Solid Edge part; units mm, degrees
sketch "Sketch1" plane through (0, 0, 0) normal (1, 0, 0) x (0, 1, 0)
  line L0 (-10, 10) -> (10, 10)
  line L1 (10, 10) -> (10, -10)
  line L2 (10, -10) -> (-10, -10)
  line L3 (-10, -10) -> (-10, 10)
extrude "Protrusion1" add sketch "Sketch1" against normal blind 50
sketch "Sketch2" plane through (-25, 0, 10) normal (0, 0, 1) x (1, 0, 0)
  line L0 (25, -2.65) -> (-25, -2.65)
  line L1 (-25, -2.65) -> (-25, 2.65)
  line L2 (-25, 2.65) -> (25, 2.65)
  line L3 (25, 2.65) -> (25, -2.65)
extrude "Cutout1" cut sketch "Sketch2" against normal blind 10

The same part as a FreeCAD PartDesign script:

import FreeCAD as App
import Part
import Sketcher


def add_polygon(sketch, points):
    """Adds a closed chain of lines whose ends are joined by coincident constraints."""
    first, n = sketch.GeometryCount, len(points)
    for a, b in zip(points, points[1:] + points[:1]):
        sketch.addGeometry(Part.LineSegment(App.Vector(*a, 0), App.Vector(*b, 0)), False)
    for i in range(n):
        sketch.addConstraint(Sketcher.Constraint("Coincident", first + i, 2, first + (i + 1) % n, 1))

doc = App.newDocument("Part")
body = doc.addObject("PartDesign::Body", "Body")

sketch1 = body.newObject("Sketcher::SketchObject", "Sketch")
sketch1.AttachmentSupport = (doc.getObject("YZ_Plane"), [""])
sketch1.MapMode = "FlatFace"
add_polygon(sketch1, [(10, 10), (-10, 10), (-10, -10), (10, -10)])
sketch1.addConstraint(Sketcher.Constraint("Horizontal", 0))
sketch1.addConstraint(Sketcher.Constraint("Vertical", 1))
sketch1.addConstraint(Sketcher.Constraint("Horizontal", 2))
sketch1.addConstraint(Sketcher.Constraint("Vertical", 3))
sketch1.addConstraint(Sketcher.Constraint("Symmetric", 0, 2, 2, 2, -1, 1))
sketch1.addConstraint(Sketcher.Constraint("Equal", 2, 1))
sketch1.addConstraint(Sketcher.Constraint("DistanceX", 0, 2, 0, 1, 20.0))
pad1 = body.newObject("PartDesign::Pad", "Pad")
pad1.Profile = sketch1
pad1.Length = 50
pad1.Reversed = True

sketch2 = body.newObject("Sketcher::SketchObject", "Sketch001")
sketch2.AttachmentSupport = (doc.getObject("XY_Plane"), [""])
sketch2.MapMode = "FlatFace"
sketch2.AttachmentOffset = App.Placement(App.Vector(0, 0, 10), App.Rotation())
add_polygon(sketch2, [(-50, -3), (0, -3), (0, 3), (-50, 3)])
sketch2.addConstraint(Sketcher.Constraint("Horizontal", 0))
sketch2.addConstraint(Sketcher.Constraint("Vertical", 1))
sketch2.addConstraint(Sketcher.Constraint("Horizontal", 2))
sketch2.addConstraint(Sketcher.Constraint("Vertical", 3))
sketch2.addConstraint(Sketcher.Constraint("Symmetric", 0, 2, 1, 2, -1, 1))
sketch2.addConstraint(Sketcher.Constraint("DistanceX", 0, 1, 0, 2, 50.0))
sketch2.addConstraint(Sketcher.Constraint("DistanceY", 1, 1, 1, 2, 5.3))
pocket1 = body.newObject("PartDesign::Pocket", "Pocket")
pocket1.Profile = sketch2
pocket1.Length = 10

doc.recompute()
